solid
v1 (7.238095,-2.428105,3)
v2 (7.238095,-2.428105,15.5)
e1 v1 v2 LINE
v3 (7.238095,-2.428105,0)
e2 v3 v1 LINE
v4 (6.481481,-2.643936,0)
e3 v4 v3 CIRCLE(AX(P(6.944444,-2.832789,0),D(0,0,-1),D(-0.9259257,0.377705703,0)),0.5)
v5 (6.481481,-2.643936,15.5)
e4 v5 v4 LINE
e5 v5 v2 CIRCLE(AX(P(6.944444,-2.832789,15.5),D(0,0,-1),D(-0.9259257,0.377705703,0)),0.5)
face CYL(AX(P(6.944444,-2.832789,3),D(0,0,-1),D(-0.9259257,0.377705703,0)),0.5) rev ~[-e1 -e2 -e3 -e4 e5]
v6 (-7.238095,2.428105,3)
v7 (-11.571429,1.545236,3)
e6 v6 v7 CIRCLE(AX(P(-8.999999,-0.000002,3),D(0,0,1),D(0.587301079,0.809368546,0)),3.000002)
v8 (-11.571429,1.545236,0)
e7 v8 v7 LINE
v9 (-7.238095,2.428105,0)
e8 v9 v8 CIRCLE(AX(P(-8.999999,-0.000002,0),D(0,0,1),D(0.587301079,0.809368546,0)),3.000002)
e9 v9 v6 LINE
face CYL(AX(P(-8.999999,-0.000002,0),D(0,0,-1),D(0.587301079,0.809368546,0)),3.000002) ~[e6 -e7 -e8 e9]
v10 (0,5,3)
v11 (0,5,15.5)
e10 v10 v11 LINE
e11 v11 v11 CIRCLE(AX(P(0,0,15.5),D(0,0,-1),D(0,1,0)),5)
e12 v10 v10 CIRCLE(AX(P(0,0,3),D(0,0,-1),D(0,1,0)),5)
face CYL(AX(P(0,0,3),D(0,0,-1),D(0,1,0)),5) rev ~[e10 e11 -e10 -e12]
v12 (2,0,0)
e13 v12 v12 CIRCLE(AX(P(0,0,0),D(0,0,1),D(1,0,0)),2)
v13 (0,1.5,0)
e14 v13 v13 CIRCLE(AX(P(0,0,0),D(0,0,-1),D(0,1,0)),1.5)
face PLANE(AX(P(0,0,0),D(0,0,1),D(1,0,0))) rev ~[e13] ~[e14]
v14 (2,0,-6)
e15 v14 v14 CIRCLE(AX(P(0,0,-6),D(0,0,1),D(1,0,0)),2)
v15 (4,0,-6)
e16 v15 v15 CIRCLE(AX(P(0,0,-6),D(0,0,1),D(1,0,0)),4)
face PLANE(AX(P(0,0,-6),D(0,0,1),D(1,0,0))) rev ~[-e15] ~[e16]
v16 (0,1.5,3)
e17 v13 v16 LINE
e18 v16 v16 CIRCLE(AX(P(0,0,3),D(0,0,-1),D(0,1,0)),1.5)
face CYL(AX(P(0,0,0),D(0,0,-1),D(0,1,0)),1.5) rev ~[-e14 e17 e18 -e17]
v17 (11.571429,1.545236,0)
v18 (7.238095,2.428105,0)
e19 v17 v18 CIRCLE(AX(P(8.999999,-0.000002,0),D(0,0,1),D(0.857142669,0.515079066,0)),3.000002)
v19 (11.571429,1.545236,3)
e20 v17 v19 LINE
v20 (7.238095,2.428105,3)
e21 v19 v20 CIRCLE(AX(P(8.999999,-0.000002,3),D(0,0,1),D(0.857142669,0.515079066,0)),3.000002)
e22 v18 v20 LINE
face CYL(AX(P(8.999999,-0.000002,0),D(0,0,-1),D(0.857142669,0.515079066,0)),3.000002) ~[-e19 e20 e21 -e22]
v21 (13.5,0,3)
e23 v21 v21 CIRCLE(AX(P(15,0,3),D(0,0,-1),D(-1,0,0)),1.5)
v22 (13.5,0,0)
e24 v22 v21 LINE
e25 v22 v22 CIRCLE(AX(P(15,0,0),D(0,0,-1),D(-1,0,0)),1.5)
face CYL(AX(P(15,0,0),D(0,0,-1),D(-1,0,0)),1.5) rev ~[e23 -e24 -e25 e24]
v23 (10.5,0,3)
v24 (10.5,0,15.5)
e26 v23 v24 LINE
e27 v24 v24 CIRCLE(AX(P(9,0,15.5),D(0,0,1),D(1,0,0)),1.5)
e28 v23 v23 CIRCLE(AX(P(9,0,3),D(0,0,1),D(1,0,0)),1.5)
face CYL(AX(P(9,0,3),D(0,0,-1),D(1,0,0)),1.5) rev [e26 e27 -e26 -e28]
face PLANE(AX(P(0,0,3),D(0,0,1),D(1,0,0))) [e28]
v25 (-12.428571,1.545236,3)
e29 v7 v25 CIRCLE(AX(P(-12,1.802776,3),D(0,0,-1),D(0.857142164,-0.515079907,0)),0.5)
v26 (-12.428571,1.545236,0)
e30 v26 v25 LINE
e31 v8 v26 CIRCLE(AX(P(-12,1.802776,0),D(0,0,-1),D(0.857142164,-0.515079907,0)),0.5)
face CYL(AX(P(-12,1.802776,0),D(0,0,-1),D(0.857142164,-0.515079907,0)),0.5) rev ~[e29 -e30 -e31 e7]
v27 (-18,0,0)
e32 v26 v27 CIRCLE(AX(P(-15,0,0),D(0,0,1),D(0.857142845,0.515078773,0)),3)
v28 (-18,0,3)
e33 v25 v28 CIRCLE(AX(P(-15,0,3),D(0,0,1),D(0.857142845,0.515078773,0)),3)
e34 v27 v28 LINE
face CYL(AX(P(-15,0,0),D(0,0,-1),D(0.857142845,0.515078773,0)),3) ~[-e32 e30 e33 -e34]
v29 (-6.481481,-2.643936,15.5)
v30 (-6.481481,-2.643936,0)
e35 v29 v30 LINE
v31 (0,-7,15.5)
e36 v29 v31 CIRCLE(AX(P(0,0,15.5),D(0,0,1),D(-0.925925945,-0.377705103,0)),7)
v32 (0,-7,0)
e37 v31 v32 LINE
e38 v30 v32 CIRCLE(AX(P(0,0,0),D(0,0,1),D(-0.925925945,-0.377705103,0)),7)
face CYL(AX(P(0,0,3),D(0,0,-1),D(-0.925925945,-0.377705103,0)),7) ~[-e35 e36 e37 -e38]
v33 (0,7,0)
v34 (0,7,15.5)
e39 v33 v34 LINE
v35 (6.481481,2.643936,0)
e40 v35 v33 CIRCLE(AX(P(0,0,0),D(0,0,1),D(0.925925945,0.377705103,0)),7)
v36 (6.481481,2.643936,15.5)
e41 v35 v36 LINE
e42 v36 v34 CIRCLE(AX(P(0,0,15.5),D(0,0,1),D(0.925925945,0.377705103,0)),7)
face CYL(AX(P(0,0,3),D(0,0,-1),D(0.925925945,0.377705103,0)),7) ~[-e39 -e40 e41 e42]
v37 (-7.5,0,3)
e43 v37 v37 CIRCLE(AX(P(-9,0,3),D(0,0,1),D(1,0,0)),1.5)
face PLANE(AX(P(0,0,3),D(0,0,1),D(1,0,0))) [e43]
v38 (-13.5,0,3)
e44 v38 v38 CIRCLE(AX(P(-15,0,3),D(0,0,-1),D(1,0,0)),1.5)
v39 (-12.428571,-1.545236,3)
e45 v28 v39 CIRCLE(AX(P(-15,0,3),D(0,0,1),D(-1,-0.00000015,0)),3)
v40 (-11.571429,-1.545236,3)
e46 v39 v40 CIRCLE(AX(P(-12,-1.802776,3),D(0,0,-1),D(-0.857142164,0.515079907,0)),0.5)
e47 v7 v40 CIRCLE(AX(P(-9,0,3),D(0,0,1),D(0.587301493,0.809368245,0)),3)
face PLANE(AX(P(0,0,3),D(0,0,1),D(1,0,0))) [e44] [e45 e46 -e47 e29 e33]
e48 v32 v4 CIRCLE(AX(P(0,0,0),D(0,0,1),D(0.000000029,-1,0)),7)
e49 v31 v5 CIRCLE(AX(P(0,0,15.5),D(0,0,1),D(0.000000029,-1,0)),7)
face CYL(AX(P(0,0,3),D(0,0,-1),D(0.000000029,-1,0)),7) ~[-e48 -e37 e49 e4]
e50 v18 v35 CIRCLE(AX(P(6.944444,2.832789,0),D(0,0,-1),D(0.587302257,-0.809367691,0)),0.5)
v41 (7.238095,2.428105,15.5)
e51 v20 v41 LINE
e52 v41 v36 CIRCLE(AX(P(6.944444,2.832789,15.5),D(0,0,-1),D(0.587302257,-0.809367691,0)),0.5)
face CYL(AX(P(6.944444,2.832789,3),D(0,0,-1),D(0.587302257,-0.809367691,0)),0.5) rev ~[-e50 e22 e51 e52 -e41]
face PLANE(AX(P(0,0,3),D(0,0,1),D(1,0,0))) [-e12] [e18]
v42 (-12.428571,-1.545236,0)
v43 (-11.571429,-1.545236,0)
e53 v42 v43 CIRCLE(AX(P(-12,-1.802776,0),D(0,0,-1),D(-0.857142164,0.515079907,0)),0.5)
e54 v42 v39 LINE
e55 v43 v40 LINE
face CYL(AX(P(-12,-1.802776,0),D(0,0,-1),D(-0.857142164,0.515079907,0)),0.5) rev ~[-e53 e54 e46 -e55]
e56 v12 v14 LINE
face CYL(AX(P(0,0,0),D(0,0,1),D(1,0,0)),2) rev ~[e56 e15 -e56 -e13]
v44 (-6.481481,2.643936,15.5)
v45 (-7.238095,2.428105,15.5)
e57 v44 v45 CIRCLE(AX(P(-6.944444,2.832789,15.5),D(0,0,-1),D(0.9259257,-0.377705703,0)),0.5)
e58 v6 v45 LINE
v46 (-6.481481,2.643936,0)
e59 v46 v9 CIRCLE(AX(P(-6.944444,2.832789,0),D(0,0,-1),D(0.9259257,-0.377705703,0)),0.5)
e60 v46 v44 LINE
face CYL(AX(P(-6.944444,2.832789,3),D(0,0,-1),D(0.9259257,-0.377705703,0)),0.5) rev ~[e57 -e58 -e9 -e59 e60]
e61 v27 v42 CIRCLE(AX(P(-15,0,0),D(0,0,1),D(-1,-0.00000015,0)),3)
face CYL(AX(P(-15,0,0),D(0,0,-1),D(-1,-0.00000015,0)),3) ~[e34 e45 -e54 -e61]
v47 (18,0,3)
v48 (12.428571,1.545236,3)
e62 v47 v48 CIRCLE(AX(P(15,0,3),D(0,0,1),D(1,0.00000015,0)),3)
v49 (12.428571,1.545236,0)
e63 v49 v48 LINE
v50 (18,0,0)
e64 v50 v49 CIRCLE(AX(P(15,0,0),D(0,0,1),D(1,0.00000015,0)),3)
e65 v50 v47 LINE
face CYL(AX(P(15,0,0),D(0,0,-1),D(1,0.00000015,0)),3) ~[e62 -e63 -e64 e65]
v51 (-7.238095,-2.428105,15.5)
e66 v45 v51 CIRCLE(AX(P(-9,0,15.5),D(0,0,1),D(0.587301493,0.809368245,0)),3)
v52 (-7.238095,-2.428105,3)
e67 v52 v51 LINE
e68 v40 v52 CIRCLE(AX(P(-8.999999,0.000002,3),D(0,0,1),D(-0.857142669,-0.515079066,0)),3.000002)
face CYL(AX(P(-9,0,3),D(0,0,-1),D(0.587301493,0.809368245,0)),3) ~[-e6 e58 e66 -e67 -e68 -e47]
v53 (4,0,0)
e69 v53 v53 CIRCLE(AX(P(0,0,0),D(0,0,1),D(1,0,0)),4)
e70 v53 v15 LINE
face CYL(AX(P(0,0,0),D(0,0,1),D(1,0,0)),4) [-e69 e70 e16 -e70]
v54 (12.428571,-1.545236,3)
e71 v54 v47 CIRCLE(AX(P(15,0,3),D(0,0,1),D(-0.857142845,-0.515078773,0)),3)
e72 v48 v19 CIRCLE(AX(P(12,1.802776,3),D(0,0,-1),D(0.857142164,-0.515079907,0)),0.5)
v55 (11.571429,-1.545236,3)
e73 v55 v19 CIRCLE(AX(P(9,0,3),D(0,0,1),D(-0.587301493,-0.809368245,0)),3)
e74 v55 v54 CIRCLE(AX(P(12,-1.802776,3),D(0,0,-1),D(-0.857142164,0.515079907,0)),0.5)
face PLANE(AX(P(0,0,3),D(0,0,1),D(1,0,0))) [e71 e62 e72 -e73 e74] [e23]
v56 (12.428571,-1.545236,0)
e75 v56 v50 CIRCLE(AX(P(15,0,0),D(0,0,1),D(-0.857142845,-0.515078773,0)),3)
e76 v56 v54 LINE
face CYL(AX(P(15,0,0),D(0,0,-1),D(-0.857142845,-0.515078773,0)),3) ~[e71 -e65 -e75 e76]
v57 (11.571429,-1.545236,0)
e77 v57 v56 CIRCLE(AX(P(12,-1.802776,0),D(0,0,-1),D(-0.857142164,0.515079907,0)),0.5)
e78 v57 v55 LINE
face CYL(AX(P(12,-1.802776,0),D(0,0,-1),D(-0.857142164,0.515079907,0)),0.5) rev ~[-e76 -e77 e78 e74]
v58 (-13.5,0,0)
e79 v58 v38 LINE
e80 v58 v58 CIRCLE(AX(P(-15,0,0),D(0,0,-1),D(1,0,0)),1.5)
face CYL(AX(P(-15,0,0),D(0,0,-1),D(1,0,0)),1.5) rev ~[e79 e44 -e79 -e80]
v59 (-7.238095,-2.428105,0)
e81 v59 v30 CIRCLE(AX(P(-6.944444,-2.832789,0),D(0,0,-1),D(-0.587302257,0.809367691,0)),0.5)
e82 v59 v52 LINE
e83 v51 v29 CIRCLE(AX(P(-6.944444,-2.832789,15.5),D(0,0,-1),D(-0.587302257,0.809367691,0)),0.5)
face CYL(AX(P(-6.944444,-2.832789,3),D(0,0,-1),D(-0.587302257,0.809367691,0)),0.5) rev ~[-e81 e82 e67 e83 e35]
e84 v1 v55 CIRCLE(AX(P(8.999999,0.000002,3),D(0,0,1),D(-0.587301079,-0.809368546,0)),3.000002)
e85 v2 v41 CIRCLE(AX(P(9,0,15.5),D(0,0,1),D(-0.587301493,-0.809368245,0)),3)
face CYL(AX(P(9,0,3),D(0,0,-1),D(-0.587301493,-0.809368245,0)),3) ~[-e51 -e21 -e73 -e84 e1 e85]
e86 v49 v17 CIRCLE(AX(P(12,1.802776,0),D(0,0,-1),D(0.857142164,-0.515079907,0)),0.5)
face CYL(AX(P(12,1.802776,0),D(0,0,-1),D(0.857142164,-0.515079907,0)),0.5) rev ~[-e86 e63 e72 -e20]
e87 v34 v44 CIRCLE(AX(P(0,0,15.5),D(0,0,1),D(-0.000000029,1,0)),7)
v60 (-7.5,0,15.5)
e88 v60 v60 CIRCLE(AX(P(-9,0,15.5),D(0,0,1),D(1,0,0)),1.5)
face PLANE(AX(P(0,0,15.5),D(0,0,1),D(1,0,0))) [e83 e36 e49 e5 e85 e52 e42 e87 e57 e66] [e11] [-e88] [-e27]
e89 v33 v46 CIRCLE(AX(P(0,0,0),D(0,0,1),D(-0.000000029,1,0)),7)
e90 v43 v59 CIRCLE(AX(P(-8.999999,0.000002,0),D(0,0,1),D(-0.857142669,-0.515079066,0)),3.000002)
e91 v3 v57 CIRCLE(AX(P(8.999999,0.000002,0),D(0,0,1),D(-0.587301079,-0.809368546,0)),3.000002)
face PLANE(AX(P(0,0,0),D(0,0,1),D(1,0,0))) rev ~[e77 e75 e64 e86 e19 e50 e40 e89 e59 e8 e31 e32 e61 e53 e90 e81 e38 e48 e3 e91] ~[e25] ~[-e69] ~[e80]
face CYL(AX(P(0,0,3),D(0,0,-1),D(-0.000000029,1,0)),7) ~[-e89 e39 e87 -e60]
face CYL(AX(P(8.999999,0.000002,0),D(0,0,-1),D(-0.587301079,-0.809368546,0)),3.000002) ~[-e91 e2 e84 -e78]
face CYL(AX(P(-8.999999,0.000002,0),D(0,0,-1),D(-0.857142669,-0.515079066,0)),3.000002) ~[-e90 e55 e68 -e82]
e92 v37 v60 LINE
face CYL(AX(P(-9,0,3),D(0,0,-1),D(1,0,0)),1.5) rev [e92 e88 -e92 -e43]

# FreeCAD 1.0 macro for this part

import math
import FreeCAD as App
import Part
import Sketcher

doc = App.newDocument("Part")
body = doc.addObject("PartDesign::Body", "Body")

sketch1 = body.newObject("Sketcher::SketchObject", "Sketch")
sketch1.AttachmentSupport = (doc.getObject("XY_Plane"), [""])
sketch1.MapMode = "FlatFace"
sketch1.addGeometry([
    Part.ArcOfCircle(Part.Circle(App.Vector(6.94, 2.83, 0), App.Vector(0, 0, 1), 0.5), math.radians(-158), math.radians(-54)),
    Part.ArcOfCircle(Part.Circle(App.Vector(0, 0, 0), App.Vector(0, 0, 1), 7), math.radians(22), math.radians(90)),
    Part.ArcOfCircle(Part.Circle(App.Vector(0, 0, 0), App.Vector(0, 0, 1), 7), math.radians(90), math.radians(158)),
    Part.ArcOfCircle(Part.Circle(App.Vector(-6.94, 2.83, 0), App.Vector(0, 0, 1), 0.5), math.radians(-126), math.radians(-22)),
    Part.ArcOfCircle(Part.Circle(App.Vector(-9, 0, 0), App.Vector(0, 0, 1), 3), math.radians(54), math.radians(149)),
    Part.ArcOfCircle(Part.Circle(App.Vector(-12, 1.8, 0), App.Vector(0, 0, 1), 0.5), math.radians(-149), math.radians(-31)),
    Part.ArcOfCircle(Part.Circle(App.Vector(-15, 0, 0), App.Vector(0, 0, 1), 3), math.radians(31), math.radians(180)),
    Part.ArcOfCircle(Part.Circle(App.Vector(-15, 0, 0), App.Vector(0, 0, 1), 3), math.radians(-180), math.radians(-31)),
    Part.ArcOfCircle(Part.Circle(App.Vector(-12, -1.8, 0), App.Vector(0, 0, 1), 0.5), math.radians(31), math.radians(149)),
    Part.ArcOfCircle(Part.Circle(App.Vector(-9, 0, 0), App.Vector(0, 0, 1), 3), math.radians(-149), math.radians(-54)),
    Part.ArcOfCircle(Part.Circle(App.Vector(-6.94, -2.83, 0), App.Vector(0, 0, 1), 0.5), math.radians(22), math.radians(126)),
    Part.ArcOfCircle(Part.Circle(App.Vector(0, 0, 0), App.Vector(0, 0, 1), 7), math.radians(-158), math.radians(-90)),
    Part.ArcOfCircle(Part.Circle(App.Vector(0, 0, 0), App.Vector(0, 0, 1), 7), math.radians(-90), math.radians(-22)),
    Part.ArcOfCircle(Part.Circle(App.Vector(6.94, -2.83, 0), App.Vector(0, 0, 1), 0.5), math.radians(54), math.radians(158)),
    Part.ArcOfCircle(Part.Circle(App.Vector(9, 0, 0), App.Vector(0, 0, 1), 3), math.radians(-126), math.radians(-31)),
    Part.ArcOfCircle(Part.Circle(App.Vector(12, -1.8, 0), App.Vector(0, 0, 1), 0.5), math.radians(31), math.radians(149)),
    Part.ArcOfCircle(Part.Circle(App.Vector(15, 0, 0), App.Vector(0, 0, 1), 3), math.radians(-149), math.radians(0)),
    Part.ArcOfCircle(Part.Circle(App.Vector(15, 0, 0), App.Vector(0, 0, 1), 3), math.radians(0), math.radians(149)),
    Part.ArcOfCircle(Part.Circle(App.Vector(12, 1.8, 0), App.Vector(0, 0, 1), 0.5), math.radians(-149), math.radians(-31)),
    Part.ArcOfCircle(Part.Circle(App.Vector(9, 0, 0), App.Vector(0, 0, 1), 3), math.radians(31), math.radians(126)),
    Part.Circle(App.Vector(-15, 0, 0), App.Vector(0, 0, 1), 1.5),
    Part.Circle(App.Vector(0, 0, 0), App.Vector(0, 0, 1), 1.5),
    Part.Circle(App.Vector(15, 0, 0), App.Vector(0, 0, 1), 1.5),
], False)
sketch1.addConstraint([
    Sketcher.Constraint("Tangent", 0, 1, 1, 1),
    Sketcher.Constraint("Tangent", 1, 2, 2, 1),
    Sketcher.Constraint("Tangent", 2, 2, 3, 2),
    Sketcher.Constraint("Tangent", 3, 1, 4, 1),
    Sketcher.Constraint("Tangent", 4, 2, 5, 2),
    Sketcher.Constraint("Tangent", 5, 1, 6, 1),
    Sketcher.Constraint("Tangent", 6, 2, 7, 1),
    Sketcher.Constraint("Tangent", 7, 2, 8, 2),
    Sketcher.Constraint("Tangent", 8, 1, 9, 1),
    Sketcher.Constraint("Tangent", 9, 2, 10, 2),
    Sketcher.Constraint("Tangent", 10, 1, 11, 1),
    Sketcher.Constraint("Tangent", 11, 2, 12, 1),
    Sketcher.Constraint("Tangent", 12, 2, 13, 2),
    Sketcher.Constraint("Tangent", 13, 1, 14, 1),
    Sketcher.Constraint("Tangent", 14, 2, 15, 2),
    Sketcher.Constraint("Tangent", 15, 1, 16, 1),
    Sketcher.Constraint("Tangent", 16, 2, 17, 1),
    Sketcher.Constraint("Tangent", 17, 2, 18, 2),
    Sketcher.Constraint("Tangent", 18, 1, 19, 1),
    Sketcher.Constraint("Tangent", 19, 2, 0, 2),
    Sketcher.Constraint("Coincident", 1, 3, -1, 1),
    Sketcher.Constraint("Coincident", 11, 3, -1, 1),
    Sketcher.Constraint("Coincident", 21, 3, -1, 1),
    Sketcher.Constraint("Coincident", 9, 3, 4, 3),
    Sketcher.Constraint("Coincident", 19, 3, 14, 3),
    Sketcher.Constraint("Coincident", 20, 3, 6, 3),
    Sketcher.Constraint("Coincident", 22, 3, 16, 3),
    Sketcher.Constraint("Equal", 1, 2),
    Sketcher.Constraint("Equal", 0, 3),
    Sketcher.Constraint("Equal", 3, 5),
    Sketcher.Constraint("Equal", 4, 6),
    Sketcher.Constraint("Equal", 6, 7),
    Sketcher.Constraint("Equal", 5, 8),
    Sketcher.Constraint("Equal", 7, 9),
    Sketcher.Constraint("Equal", 8, 10),
    Sketcher.Constraint("Equal", 2, 11),
    Sketcher.Constraint("Equal", 11, 12),
    Sketcher.Constraint("Equal", 10, 13),
    Sketcher.Constraint("Equal", 9, 14),
    Sketcher.Constraint("Equal", 13, 15),
    Sketcher.Constraint("Equal", 14, 16),
    Sketcher.Constraint("Equal", 16, 17),
    Sketcher.Constraint("Equal", 15, 18),
    Sketcher.Constraint("Equal", 17, 19),
    Sketcher.Constraint("Equal", 20, 21),
    Sketcher.Constraint("Equal", 21, 22),
    Sketcher.Constraint("Symmetric", 4, 3, 14, 3, -1, 1),
    Sketcher.Constraint("Symmetric", 6, 3, 16, 3, -1, 1),
    Sketcher.Constraint("Symmetric", 8, 3, 15, 3, -2),
    Sketcher.Constraint("PointOnObject", 1, 2, -2),
    Sketcher.Constraint("PointOnObject", 6, 2, -1),
    Sketcher.Constraint("PointOnObject", 11, 2, -2),
    Sketcher.Constraint("PointOnObject", 16, 2, -1),
    Sketcher.Constraint("Diameter", 20, 3.0),
    Sketcher.Constraint("Radius", 1, 7.0),
    Sketcher.Constraint("Radius", 4, 3.000002),
    Sketcher.Constraint("Radius", 0, 0.5),
    Sketcher.Constraint("DistanceX", 4, 3, -1, 1, 8.999999),
    Sketcher.Constraint("DistanceX", 5, 3, -1, 1, 12.0),
])
pad1 = body.newObject("PartDesign::Pad", "Pad")
pad1.Profile = sketch1
pad1.Length = 3

sketch2 = body.newObject("Sketcher::SketchObject", "Sketch001")
sketch2.AttachmentSupport = (doc.getObject("XY_Plane"), [""])
sketch2.MapMode = "FlatFace"
sketch2.AttachmentOffset = App.Placement(App.Vector(0, 0, 3), App.Rotation())
sketch2.addGeometry([
    Part.ArcOfCircle(Part.Circle(App.Vector(6.9, 2.8, 0), App.Vector(0, 0, 1), 0.5), math.radians(-158), math.radians(-54)),
    Part.ArcOfCircle(Part.Circle(App.Vector(0, 0, 0), App.Vector(0, 0, 1), 7), math.radians(22), math.radians(90)),
    Part.ArcOfCircle(Part.Circle(App.Vector(0, 0, 0), App.Vector(0, 0, 1), 7), math.radians(90), math.radians(158)),
    Part.ArcOfCircle(Part.Circle(App.Vector(-6.9, 2.8, 0), App.Vector(0, 0, 1), 0.5), math.radians(-126), math.radians(-22)),
    Part.ArcOfCircle(Part.Circle(App.Vector(-9, 0, 0), App.Vector(0, 0, 1), 3), math.radians(54), math.radians(306)),
    Part.ArcOfCircle(Part.Circle(App.Vector(-6.9, -2.8, 0), App.Vector(0, 0, 1), 0.5), math.radians(22), math.radians(126)),
    Part.ArcOfCircle(Part.Circle(App.Vector(0, 0, 0), App.Vector(0, 0, 1), 7), math.radians(-158), math.radians(-90)),
    Part.ArcOfCircle(Part.Circle(App.Vector(0, 0, 0), App.Vector(0, 0, 1), 7), math.radians(-90), math.radians(-22)),
    Part.ArcOfCircle(Part.Circle(App.Vector(6.9, -2.8, 0), App.Vector(0, 0, 1), 0.5), math.radians(54), math.radians(158)),
    Part.ArcOfCircle(Part.Circle(App.Vector(9, 0, 0), App.Vector(0, 0, 1), 3), math.radians(-126), math.radians(126)),
    Part.Circle(App.Vector(-9, 0, 0), App.Vector(0, 0, 1), 1.5),
    Part.Circle(App.Vector(0, 0, 0), App.Vector(0, 0, 1), 5),
    Part.Circle(App.Vector(9, 0, 0), App.Vector(0, 0, 1), 1.5),
], False)
sketch2.addConstraint([
    Sketcher.Constraint("Tangent", 0, 1, 1, 1),
    Sketcher.Constraint("Tangent", 1, 2, 2, 1),
    Sketcher.Constraint("Tangent", 2, 2, 3, 2),
    Sketcher.Constraint("Tangent", 3, 1, 4, 1),
    Sketcher.Constraint("Tangent", 4, 2, 5, 2),
    Sketcher.Constraint("Tangent", 5, 1, 6, 1),
    Sketcher.Constraint("Tangent", 6, 2, 7, 1),
    Sketcher.Constraint("Tangent", 7, 2, 8, 2),
    Sketcher.Constraint("Tangent", 8, 1, 9, 1),
    Sketcher.Constraint("Tangent", 9, 2, 0, 2),
    Sketcher.Constraint("Coincident", 1, 3, -1, 1),
    Sketcher.Constraint("Coincident", 6, 3, -1, 1),
    Sketcher.Constraint("Coincident", 11, 3, -1, 1),
    Sketcher.Constraint("Coincident", 10, 3, 4, 3),
    Sketcher.Constraint("Coincident", 12, 3, 9, 3),
    Sketcher.Constraint("Equal", 1, 2),
    Sketcher.Constraint("Equal", 0, 3),
    Sketcher.Constraint("Equal", 3, 5),
    Sketcher.Constraint("Equal", 2, 6),
    Sketcher.Constraint("Equal", 6, 7),
    Sketcher.Constraint("Equal", 5, 8),
    Sketcher.Constraint("Equal", 4, 9),
    Sketcher.Constraint("Equal", 10, 12),
    Sketcher.Constraint("Symmetric", 4, 3, 9, 3, -1, 1),
    Sketcher.Constraint("PointOnObject", 4, 3, -1),
    Sketcher.Constraint("PointOnObject", 1, 2, -2),
    Sketcher.Constraint("PointOnObject", 6, 2, -2),
    Sketcher.Constraint("Diameter", 10, 3.0),
    Sketcher.Constraint("Diameter", 11, 10.0),
    Sketcher.Constraint("Radius", 1, 7.0),
    Sketcher.Constraint("Radius", 4, 3.0),
    Sketcher.Constraint("Radius", 0, 0.5),
    Sketcher.Constraint("DistanceX", 4, 3, -1, 1, 9.0),
])
pad2 = body.newObject("PartDesign::Pad", "Pad001")
pad2.Profile = sketch2
pad2.Length = 12.5

sketch3 = body.newObject("Sketcher::SketchObject", "Sketch002")
sketch3.AttachmentSupport = (doc.getObject("XY_Plane"), [""])
sketch3.MapMode = "FlatFace"
sketch3.addGeometry([
    Part.Circle(App.Vector(0, 0, 0), App.Vector(0, 0, 1), 4),
    Part.Circle(App.Vector(0, 0, 0), App.Vector(0, 0, 1), 2),
], False)
sketch3.addConstraint([
    Sketcher.Constraint("Coincident", 0, 3, -1, 1),
    Sketcher.Constraint("Coincident", 1, 3, -1, 1),
    Sketcher.Constraint("Diameter", 0, 8.0),
    Sketcher.Constraint("Diameter", 1, 4.0),
])
pad3 = body.newObject("PartDesign::Pad", "Pad002")
pad3.Profile = sketch3
pad3.Length = 6
pad3.Reversed = True

doc.recompute()
